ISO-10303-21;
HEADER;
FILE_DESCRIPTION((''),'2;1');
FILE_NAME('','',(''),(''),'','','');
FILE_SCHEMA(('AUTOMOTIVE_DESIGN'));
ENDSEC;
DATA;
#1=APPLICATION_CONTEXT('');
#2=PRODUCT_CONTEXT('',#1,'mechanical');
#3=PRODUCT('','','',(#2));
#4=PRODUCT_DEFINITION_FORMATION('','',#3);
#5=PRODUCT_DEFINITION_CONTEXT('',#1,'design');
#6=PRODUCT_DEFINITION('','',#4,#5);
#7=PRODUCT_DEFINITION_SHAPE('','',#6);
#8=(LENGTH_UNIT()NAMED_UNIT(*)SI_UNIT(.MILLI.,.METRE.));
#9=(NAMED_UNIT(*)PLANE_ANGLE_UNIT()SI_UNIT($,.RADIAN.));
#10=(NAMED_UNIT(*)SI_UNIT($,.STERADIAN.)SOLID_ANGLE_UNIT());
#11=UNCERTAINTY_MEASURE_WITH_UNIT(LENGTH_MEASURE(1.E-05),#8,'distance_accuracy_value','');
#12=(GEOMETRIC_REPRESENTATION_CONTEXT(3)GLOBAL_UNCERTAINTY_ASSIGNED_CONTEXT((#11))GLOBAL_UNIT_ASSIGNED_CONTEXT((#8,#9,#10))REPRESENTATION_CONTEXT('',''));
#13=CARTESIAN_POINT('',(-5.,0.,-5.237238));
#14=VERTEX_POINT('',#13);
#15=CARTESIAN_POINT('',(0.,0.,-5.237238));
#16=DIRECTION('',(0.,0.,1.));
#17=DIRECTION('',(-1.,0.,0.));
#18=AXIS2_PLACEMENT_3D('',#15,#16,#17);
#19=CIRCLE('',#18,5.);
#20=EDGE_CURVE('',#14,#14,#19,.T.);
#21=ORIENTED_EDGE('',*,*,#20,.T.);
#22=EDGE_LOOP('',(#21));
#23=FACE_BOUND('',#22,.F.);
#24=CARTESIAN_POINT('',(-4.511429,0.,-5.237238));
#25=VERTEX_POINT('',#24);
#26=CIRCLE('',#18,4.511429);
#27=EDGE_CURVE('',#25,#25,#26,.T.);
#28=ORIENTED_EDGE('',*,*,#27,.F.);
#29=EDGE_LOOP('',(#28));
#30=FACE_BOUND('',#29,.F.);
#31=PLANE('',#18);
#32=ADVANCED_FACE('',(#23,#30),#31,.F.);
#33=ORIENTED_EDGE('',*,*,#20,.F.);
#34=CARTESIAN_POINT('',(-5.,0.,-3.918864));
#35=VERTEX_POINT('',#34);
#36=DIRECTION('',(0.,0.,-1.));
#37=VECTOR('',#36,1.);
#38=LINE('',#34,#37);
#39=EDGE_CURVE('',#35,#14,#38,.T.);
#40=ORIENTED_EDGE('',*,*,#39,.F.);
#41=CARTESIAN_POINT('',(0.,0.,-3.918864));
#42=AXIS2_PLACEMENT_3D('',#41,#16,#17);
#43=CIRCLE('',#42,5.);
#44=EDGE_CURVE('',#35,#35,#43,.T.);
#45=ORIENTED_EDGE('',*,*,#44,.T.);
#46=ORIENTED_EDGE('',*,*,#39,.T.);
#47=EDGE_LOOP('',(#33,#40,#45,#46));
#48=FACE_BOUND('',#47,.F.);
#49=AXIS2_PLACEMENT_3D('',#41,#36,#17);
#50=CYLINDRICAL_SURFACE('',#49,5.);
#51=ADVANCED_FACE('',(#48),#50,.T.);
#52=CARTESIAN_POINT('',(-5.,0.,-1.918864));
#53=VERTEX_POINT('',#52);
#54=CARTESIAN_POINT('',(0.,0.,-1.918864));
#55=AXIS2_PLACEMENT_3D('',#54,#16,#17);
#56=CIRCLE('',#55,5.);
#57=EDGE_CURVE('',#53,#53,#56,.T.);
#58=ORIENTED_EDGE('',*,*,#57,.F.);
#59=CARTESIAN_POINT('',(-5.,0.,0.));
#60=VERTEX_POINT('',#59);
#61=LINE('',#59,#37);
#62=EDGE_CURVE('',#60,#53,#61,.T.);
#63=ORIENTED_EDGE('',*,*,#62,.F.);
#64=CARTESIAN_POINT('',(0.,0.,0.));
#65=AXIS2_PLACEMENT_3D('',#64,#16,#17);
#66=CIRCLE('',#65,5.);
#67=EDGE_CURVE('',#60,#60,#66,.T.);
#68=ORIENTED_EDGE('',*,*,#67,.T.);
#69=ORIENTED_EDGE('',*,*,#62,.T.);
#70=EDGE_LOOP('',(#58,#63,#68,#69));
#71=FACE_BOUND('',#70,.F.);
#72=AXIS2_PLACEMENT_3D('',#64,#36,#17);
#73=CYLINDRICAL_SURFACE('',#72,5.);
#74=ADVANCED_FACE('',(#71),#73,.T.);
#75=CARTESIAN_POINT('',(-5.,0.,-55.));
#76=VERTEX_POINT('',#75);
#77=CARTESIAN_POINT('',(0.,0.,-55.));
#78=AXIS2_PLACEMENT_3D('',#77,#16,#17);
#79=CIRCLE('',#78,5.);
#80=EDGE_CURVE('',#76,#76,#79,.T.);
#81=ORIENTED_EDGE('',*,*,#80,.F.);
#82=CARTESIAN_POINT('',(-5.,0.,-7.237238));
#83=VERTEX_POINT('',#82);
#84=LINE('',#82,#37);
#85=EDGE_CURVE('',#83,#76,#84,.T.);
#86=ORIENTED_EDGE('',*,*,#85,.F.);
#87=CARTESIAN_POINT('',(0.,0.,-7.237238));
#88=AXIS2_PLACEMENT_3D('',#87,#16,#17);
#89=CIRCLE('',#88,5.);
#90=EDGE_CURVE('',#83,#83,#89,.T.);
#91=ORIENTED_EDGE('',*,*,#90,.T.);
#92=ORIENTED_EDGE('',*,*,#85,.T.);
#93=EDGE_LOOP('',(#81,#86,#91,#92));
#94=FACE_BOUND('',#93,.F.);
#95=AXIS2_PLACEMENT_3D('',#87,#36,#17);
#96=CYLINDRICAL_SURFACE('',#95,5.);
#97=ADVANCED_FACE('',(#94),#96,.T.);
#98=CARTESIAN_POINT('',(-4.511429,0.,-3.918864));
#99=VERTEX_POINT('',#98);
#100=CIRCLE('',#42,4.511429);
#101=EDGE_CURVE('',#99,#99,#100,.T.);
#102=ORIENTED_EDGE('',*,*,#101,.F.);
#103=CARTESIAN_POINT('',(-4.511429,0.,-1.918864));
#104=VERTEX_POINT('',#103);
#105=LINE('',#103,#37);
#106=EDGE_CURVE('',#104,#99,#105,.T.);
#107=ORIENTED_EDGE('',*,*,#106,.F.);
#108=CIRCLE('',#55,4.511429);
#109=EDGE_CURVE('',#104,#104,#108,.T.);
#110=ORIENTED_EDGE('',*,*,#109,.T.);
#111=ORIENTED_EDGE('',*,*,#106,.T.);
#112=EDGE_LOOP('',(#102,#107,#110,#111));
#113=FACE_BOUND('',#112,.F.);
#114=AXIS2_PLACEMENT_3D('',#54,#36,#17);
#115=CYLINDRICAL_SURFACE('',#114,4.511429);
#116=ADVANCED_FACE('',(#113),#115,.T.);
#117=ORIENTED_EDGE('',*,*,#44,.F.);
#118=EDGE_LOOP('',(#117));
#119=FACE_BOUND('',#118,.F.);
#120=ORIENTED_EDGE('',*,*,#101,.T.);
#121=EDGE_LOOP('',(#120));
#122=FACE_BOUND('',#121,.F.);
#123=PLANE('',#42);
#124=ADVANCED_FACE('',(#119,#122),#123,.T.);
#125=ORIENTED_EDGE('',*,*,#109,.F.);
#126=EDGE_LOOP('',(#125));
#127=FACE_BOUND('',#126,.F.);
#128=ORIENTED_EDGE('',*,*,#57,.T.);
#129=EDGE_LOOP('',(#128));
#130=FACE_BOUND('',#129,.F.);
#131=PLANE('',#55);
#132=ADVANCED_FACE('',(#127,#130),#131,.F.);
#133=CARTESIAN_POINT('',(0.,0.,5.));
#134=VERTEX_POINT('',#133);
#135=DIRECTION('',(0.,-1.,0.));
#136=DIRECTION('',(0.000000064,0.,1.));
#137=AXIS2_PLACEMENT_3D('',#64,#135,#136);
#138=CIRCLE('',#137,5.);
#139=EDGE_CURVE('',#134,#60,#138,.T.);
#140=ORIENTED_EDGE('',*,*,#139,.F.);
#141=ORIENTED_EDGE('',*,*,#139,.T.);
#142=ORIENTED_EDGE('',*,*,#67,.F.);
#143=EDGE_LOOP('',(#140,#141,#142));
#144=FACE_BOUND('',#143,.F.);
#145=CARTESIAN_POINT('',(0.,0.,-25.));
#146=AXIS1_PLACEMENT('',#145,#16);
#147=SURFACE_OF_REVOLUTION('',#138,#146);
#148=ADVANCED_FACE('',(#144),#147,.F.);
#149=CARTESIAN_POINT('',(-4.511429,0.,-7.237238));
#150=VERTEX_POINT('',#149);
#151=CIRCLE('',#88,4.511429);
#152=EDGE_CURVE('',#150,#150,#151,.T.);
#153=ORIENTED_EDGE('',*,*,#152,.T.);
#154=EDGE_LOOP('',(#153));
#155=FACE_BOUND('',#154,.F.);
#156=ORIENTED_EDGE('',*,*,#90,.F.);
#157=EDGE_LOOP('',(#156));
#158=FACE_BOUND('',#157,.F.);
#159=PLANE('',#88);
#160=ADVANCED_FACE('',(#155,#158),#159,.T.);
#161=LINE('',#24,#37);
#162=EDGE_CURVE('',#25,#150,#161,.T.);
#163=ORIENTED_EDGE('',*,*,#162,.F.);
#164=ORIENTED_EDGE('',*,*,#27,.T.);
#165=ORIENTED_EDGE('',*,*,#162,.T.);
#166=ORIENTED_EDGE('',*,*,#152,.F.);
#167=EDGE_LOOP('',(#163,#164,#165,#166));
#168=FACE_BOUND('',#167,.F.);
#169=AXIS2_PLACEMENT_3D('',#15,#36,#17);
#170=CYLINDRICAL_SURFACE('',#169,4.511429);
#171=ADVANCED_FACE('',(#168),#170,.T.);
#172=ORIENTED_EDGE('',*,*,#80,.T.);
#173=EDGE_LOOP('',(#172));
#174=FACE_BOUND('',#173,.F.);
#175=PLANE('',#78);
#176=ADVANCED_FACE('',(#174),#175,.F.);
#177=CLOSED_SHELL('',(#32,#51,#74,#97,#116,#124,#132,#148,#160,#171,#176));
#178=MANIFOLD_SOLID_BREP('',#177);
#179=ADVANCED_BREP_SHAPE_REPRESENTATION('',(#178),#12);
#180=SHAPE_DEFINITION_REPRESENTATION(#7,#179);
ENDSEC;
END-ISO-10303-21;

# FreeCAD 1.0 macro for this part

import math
import FreeCAD as App
import Part
import Sketcher

doc = App.newDocument("Part")
body = doc.addObject("PartDesign::Body", "Body")

sketch1 = doc.addObject("Sketcher::SketchObject", "Sketch")
body.addObject(sketch1)
sketch1.AttachmentSupport = (doc.XZ_Plane, [""])
sketch1.MapMode = "FlatFace"
sketch1.addGeometry([
    Part.LineSegment(App.Vector(0, -55, 0), App.Vector(0, 5, 0)),
    Part.ArcOfCircle(Part.Circle(App.Vector(0, 0, 0), App.Vector(0, 0, 1), 5), math.radians(90), math.radians(180)),
    Part.LineSegment(App.Vector(-5, 0, 0), App.Vector(-5, -1.92, 0)),
    Part.LineSegment(App.Vector(-5, -1.92, 0), App.Vector(-4.51, -1.92, 0)),
    Part.LineSegment(App.Vector(-4.51, -1.92, 0), App.Vector(-4.51, -3.92, 0)),
    Part.LineSegment(App.Vector(-4.51, -3.92, 0), App.Vector(-5, -3.92, 0)),
    Part.LineSegment(App.Vector(-5, -3.92, 0), App.Vector(-5, -5.24, 0)),
    Part.LineSegment(App.Vector(-5, -5.24, 0), App.Vector(-4.51, -5.24, 0)),
    Part.LineSegment(App.Vector(-4.51, -5.24, 0), App.Vector(-4.51, -7.24, 0)),
    Part.LineSegment(App.Vector(-4.51, -7.24, 0), App.Vector(-5, -7.24, 0)),
    Part.LineSegment(App.Vector(-5, -7.24, 0), App.Vector(-5, -55, 0)),
    Part.LineSegment(App.Vector(-5, -55, 0), App.Vector(0, -55, 0)),
], False)
sketch1.addConstraint([
    Sketcher.Constraint("Coincident", 0, 2, 1, 1),
    Sketcher.Constraint("Tangent", 1, 2, 2, 1),
    Sketcher.Constraint("Coincident", 2, 2, 3, 1),
    Sketcher.Constraint("Coincident", 3, 2, 4, 1),
    Sketcher.Constraint("Coincident", 4, 2, 5, 1),
    Sketcher.Constraint("Coincident", 5, 2, 6, 1),
    Sketcher.Constraint("Coincident", 6, 2, 7, 1),
    Sketcher.Constraint("Coincident", 7, 2, 8, 1),
    Sketcher.Constraint("Coincident", 8, 2, 9, 1),
    Sketcher.Constraint("Coincident", 9, 2, 10, 1),
    Sketcher.Constraint("Coincident", 10, 2, 11, 1),
    Sketcher.Constraint("Coincident", 11, 2, 0, 1),
    Sketcher.Constraint("Vertical", 0),
    Sketcher.Constraint("Vertical", 2),
    Sketcher.Constraint("Horizontal", 3),
    Sketcher.Constraint("Vertical", 4),
    Sketcher.Constraint("Horizontal", 5),
    Sketcher.Constraint("Vertical", 6),
    Sketcher.Constraint("Horizontal", 7),
    Sketcher.Constraint("Vertical", 8),
    Sketcher.Constraint("Horizontal", 9),
    Sketcher.Constraint("Vertical", 10),
    Sketcher.Constraint("Horizontal", 11),
    Sketcher.Constraint("Coincident", 1, 3, -1, 1),
    Sketcher.Constraint("PointOnObject", 0, 2, -2),
    Sketcher.Constraint("Vertical", 2, 2, 5, 2),
    Sketcher.Constraint("Vertical", 4, 2, 7, 2),
    Sketcher.Constraint("Vertical", 6, 2, 9, 2),
    Sketcher.Constraint("Equal", 4, 8),
    Sketcher.Constraint("Radius", 1, 5.0),
    Sketcher.Constraint("DistanceY", 0, 1, 0, 2, 60.0),
    Sketcher.Constraint("DistanceY", 4, 2, 4, 1, 2.0),
    Sketcher.Constraint("DistanceX", 3, 1, 3, 2, 0.488571),
    Sketcher.Constraint("DistanceY", 2, 2, 2, 1, 1.918864),
    Sketcher.Constraint("DistanceY", 6, 2, 6, 1, 1.318374),
])
revolution = doc.addObject("PartDesign::Revolution", "Revolution")
body.addObject(revolution)
revolution.Profile = sketch1
revolution.ReferenceAxis = (sketch1, ["V_Axis"])
revolution.Angle = 360

doc.recompute()
